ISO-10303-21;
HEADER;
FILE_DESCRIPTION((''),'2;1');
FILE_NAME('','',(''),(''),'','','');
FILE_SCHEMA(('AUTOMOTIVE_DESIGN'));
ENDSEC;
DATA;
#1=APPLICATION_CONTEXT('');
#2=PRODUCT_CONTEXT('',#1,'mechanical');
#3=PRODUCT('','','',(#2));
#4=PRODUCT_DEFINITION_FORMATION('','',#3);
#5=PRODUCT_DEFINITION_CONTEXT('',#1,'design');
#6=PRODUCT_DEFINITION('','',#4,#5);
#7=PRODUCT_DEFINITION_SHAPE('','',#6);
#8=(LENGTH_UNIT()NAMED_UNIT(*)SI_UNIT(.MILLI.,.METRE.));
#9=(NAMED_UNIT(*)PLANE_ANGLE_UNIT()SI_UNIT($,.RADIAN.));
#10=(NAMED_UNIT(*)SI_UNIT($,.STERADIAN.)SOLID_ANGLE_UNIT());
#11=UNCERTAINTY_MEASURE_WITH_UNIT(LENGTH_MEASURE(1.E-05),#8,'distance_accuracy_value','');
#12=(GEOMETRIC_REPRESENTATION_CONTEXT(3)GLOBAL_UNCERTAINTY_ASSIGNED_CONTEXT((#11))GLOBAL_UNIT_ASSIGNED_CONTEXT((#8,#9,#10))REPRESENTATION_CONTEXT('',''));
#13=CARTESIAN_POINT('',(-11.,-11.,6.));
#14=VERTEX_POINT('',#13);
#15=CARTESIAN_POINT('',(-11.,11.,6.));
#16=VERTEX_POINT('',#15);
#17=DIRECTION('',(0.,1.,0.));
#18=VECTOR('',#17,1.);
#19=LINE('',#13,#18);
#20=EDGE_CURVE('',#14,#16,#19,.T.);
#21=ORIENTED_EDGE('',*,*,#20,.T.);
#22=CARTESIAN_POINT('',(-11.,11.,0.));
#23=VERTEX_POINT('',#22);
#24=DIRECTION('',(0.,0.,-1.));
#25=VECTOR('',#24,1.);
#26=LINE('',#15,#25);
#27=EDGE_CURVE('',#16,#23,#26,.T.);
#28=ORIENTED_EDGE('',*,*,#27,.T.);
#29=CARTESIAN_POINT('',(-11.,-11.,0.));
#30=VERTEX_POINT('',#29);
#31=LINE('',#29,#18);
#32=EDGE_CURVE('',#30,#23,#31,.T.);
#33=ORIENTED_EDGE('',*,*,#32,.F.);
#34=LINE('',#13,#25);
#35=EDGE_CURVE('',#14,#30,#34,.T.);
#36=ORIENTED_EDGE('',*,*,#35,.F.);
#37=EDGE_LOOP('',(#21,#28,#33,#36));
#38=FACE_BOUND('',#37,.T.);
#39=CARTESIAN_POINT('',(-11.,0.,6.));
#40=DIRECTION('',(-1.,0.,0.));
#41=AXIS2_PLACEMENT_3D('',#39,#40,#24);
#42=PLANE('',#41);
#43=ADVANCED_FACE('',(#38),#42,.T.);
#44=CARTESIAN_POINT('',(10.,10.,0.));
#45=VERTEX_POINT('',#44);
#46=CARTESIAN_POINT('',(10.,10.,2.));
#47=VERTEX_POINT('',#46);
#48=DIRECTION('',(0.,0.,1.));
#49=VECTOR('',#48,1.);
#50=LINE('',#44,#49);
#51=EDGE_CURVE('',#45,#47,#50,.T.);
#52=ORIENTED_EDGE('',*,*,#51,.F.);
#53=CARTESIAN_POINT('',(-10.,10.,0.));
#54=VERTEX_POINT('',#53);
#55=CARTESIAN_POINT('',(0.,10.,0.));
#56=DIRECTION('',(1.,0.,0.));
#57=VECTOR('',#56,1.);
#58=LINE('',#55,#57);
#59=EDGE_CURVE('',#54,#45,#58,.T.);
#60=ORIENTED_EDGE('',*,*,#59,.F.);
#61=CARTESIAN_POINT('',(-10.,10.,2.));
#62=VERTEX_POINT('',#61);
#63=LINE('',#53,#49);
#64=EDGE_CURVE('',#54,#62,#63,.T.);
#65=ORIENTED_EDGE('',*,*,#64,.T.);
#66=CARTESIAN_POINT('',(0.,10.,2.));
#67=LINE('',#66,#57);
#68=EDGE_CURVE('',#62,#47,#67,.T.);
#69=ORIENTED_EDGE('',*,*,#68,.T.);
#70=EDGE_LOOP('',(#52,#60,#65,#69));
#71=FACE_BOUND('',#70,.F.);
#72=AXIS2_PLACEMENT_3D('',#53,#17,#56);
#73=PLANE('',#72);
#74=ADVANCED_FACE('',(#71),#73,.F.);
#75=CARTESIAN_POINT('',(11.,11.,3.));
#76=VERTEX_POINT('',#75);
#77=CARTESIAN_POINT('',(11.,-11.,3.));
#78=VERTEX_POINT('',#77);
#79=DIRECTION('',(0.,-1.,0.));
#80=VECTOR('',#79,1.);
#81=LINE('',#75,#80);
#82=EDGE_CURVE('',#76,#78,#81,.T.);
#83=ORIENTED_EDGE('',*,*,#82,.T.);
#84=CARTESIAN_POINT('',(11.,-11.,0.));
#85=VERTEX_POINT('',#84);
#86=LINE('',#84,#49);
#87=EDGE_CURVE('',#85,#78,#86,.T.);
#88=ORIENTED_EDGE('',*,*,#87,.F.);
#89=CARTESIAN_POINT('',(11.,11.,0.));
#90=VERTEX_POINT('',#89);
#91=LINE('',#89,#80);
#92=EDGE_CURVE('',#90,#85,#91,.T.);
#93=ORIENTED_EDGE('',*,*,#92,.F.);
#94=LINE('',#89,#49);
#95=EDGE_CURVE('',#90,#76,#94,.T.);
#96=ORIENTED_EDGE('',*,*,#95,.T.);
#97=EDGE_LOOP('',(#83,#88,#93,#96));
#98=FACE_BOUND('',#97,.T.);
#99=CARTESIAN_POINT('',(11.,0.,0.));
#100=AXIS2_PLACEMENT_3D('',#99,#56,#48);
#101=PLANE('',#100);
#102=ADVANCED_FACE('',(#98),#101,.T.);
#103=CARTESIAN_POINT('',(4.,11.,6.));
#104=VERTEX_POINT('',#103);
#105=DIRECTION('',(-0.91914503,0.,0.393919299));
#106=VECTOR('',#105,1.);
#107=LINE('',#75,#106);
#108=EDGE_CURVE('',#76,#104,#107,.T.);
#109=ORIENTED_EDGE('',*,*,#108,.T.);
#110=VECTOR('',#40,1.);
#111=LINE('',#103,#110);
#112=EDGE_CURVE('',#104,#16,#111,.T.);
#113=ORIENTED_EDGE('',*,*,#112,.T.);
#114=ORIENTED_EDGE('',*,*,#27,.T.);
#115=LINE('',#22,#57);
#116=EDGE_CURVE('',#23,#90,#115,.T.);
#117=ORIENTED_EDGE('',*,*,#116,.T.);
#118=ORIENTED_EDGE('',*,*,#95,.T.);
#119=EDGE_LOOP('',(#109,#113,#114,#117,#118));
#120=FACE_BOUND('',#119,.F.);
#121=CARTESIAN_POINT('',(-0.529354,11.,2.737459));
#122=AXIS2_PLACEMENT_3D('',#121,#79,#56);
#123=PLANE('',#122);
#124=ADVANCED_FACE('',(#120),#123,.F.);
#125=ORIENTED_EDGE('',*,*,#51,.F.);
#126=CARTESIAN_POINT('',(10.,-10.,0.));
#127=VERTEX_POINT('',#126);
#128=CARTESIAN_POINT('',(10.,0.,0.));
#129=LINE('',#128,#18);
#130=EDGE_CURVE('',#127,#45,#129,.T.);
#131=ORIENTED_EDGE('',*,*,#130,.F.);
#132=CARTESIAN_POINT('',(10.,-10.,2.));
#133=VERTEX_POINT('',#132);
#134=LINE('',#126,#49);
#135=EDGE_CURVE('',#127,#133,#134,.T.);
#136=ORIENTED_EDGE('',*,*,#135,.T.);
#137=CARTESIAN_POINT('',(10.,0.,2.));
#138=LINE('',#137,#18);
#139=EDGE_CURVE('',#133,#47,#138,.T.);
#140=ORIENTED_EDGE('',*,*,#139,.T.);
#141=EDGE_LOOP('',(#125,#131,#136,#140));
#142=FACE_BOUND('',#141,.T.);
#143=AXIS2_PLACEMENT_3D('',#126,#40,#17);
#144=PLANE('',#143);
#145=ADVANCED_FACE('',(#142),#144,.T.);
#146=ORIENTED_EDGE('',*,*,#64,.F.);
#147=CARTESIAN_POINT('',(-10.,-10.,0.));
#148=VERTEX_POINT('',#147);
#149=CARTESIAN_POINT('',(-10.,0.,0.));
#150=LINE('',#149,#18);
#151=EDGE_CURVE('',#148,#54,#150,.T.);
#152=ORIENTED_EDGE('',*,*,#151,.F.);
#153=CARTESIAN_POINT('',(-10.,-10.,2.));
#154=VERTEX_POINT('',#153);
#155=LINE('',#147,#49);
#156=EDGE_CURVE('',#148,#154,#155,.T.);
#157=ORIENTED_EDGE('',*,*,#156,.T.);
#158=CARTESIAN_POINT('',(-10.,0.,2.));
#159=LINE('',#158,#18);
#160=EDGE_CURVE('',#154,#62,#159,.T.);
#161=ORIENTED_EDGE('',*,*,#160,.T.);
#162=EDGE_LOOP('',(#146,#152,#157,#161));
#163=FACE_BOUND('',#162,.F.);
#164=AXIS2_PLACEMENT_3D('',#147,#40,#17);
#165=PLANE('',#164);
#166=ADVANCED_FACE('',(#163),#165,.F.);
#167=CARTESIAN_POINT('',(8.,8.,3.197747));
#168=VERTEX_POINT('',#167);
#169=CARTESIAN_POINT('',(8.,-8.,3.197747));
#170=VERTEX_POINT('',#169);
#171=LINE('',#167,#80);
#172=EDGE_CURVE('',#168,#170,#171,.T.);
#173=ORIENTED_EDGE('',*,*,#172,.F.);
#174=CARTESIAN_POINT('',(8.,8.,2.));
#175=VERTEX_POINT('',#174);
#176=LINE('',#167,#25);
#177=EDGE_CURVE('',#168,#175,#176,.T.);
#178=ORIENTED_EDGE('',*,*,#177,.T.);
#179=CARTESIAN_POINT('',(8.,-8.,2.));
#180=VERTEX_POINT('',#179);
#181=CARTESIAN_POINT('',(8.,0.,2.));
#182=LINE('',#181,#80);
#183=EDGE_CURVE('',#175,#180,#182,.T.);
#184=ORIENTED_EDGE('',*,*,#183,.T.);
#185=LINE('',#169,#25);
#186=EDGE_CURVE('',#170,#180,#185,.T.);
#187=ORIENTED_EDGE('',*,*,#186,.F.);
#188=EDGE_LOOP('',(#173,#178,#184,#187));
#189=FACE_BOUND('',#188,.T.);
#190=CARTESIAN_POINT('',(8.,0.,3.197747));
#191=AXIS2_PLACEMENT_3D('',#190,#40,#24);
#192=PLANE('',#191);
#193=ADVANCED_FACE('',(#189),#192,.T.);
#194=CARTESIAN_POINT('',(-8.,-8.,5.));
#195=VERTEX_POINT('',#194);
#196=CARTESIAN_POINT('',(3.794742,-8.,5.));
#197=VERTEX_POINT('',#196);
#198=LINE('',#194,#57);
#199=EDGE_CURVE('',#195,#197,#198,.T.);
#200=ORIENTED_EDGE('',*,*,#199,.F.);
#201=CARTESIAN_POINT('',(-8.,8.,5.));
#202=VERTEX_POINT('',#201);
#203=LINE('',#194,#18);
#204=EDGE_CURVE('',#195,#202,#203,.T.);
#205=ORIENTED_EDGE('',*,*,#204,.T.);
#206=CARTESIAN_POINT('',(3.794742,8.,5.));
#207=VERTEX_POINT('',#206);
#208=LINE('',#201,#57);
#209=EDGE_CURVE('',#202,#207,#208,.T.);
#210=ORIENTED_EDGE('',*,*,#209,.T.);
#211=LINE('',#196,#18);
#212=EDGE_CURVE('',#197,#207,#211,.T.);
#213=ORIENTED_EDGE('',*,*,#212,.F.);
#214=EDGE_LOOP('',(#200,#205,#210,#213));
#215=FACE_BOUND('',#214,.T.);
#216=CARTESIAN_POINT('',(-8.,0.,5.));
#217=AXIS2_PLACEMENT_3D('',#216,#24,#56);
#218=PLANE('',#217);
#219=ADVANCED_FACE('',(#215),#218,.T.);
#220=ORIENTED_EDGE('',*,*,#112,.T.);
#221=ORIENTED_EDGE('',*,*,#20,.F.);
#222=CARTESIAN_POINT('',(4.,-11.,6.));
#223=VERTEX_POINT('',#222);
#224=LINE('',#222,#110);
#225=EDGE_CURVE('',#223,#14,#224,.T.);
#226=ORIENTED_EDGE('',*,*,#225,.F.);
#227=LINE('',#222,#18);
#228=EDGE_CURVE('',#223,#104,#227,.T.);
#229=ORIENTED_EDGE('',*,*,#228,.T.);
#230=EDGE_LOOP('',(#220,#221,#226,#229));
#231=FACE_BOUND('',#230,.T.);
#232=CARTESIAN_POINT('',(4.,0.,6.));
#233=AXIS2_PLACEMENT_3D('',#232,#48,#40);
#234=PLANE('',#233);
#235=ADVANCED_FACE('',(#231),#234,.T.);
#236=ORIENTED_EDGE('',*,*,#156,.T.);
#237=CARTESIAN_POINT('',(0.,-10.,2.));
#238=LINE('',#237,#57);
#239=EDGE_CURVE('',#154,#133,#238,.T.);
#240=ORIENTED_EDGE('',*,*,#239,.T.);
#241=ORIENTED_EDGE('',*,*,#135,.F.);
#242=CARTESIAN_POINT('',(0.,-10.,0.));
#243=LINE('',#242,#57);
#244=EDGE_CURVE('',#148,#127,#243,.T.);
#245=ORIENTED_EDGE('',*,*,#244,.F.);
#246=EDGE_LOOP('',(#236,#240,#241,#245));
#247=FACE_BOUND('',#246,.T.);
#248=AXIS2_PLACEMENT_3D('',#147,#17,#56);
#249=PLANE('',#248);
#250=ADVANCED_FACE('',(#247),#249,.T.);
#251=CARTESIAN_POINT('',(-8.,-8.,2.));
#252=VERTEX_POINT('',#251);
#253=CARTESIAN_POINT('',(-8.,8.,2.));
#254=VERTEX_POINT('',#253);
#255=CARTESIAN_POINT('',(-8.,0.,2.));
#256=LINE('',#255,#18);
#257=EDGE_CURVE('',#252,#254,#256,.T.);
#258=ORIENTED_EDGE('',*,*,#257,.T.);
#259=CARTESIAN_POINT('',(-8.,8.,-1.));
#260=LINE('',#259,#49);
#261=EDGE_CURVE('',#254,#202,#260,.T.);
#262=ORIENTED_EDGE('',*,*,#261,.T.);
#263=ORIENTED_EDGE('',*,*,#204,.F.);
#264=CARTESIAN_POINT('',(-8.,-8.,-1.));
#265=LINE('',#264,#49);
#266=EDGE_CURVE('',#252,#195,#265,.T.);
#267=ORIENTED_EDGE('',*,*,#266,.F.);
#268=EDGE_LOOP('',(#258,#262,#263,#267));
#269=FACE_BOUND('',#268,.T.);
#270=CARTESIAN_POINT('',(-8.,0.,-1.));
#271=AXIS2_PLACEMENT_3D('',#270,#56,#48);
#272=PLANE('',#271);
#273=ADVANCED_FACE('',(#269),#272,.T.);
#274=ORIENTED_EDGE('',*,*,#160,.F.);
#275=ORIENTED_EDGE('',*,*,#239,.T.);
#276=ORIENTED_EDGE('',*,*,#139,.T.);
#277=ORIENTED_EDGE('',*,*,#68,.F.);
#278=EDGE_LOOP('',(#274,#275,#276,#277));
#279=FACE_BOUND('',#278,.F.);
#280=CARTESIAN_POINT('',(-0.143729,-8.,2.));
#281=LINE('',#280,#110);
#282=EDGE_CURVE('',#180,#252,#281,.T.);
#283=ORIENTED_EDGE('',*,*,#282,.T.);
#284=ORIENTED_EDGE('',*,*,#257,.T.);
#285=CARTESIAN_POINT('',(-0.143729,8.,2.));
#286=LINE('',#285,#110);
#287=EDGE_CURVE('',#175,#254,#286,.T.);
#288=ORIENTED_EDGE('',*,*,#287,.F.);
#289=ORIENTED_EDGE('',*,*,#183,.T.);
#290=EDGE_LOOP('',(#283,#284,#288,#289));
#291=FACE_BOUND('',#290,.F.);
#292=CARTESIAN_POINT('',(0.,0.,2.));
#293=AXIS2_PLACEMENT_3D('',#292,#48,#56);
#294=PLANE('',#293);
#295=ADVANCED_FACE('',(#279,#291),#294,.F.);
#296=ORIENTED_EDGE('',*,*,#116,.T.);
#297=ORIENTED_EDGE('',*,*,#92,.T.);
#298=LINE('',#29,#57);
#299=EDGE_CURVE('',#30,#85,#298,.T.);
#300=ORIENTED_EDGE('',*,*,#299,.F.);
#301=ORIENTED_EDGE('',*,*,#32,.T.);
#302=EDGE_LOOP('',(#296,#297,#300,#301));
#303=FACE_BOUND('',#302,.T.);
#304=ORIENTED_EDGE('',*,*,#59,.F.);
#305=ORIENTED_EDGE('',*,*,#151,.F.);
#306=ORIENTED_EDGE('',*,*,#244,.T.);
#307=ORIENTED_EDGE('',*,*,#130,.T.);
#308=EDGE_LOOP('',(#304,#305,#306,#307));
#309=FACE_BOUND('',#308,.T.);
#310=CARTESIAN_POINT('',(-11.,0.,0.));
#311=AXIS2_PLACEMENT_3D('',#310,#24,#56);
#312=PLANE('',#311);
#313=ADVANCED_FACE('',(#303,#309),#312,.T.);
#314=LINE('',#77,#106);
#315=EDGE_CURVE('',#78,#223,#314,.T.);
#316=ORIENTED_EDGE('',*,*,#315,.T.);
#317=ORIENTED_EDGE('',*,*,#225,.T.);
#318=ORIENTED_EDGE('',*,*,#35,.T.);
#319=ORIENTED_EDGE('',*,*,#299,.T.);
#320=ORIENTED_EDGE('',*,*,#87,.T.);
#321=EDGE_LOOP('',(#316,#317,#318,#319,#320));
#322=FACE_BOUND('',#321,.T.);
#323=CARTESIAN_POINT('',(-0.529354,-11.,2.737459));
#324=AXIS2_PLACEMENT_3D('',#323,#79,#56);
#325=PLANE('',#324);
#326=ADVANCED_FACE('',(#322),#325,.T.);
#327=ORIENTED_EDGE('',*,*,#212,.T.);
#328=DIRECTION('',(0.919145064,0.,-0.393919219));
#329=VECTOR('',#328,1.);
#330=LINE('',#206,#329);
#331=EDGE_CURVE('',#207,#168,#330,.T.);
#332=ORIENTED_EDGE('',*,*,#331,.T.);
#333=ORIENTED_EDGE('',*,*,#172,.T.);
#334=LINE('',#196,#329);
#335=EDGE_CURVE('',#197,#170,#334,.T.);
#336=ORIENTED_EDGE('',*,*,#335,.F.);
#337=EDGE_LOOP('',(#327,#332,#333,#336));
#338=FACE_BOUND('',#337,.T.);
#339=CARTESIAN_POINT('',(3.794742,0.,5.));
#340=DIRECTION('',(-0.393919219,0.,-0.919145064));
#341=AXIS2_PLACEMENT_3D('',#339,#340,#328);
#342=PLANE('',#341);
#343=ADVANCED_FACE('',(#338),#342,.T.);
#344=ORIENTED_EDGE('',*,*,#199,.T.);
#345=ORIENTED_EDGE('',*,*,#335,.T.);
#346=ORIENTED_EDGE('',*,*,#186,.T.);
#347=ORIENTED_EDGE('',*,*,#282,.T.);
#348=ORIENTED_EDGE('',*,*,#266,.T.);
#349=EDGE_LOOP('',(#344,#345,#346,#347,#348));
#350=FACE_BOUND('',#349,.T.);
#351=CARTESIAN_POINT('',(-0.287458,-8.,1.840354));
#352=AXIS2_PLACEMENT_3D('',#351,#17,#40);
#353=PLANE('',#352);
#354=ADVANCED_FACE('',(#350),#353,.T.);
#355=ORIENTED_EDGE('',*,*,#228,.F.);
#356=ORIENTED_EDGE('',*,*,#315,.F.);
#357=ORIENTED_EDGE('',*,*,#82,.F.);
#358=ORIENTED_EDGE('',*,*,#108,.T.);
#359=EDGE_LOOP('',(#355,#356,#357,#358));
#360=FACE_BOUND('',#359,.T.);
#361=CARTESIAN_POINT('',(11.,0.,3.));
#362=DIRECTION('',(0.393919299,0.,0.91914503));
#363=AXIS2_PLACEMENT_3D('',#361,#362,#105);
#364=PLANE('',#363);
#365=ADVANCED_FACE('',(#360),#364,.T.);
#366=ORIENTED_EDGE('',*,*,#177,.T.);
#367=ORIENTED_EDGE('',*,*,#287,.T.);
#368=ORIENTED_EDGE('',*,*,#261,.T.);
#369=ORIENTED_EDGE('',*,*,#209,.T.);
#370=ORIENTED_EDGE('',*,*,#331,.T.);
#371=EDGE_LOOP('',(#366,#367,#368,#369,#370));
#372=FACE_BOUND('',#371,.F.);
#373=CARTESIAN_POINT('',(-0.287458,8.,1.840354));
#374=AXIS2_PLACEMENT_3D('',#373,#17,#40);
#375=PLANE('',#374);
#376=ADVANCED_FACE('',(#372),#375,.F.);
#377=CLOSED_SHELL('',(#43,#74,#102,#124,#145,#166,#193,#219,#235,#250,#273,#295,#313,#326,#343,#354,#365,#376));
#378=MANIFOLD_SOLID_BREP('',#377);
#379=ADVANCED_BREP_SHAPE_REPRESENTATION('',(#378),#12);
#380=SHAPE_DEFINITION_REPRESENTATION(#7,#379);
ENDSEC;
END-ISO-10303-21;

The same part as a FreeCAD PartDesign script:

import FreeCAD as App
import Part
import Sketcher

V = App.Vector
Q = App.Units.Quantity


def add_polygon(sketch, points):
    """Adds a closed chain of lines whose ends are joined by coincident constraints."""
    first, n = sketch.GeometryCount, len(points)
    for a, b in zip(points, points[1:] + points[:1]):
        sketch.addGeometry(Part.LineSegment(App.Vector(*a, 0), App.Vector(*b, 0)), False)
    for i in range(n):
        sketch.addConstraint(Sketcher.Constraint("Coincident", first + i, 2, first + (i + 1) % n, 1))

doc = App.newDocument("Part")
body = doc.addObject("PartDesign::Body", "Body")

# Sketch on XZ plane
sketch1 = body.newObject("Sketcher::SketchObject", "Sketch")
sketch1.AttachmentSupport = (doc.getObject("XZ_Plane"), [""])
sketch1.MapMode = "FlatFace"
add_polygon(sketch1, [(-11, 0), (11, 0), (11, 3), (4, 6), (-11, 6)])  # lines 0-4
sketch1.addConstraint([
    Sketcher.Constraint("Horizontal", 0),
    Sketcher.Constraint("Vertical", 1),
    Sketcher.Constraint("Horizontal", 3),
    Sketcher.Constraint("Vertical", 4),
    Sketcher.Constraint("Symmetric", 0, 2, 4, 2, -1, 1),
    Sketcher.Constraint("DistanceX", 0, 1, 0, 2, Q("22 mm")),
    Sketcher.Constraint("DistanceX", 3, 2, 3, 1, Q("15 mm")),
    Sketcher.Constraint("DistanceY", 1, 1, 1, 2, Q("3 mm")),
    Sketcher.Constraint("DistanceY", 4, 2, 4, 1, Q("6 mm")),
])
pad1 = body.newObject("PartDesign::Pad", "Pad")
pad1.Profile = sketch1
pad1.Length = 22
pad1.Midplane = True

# Sketch on XY plane
sketch2 = body.newObject("Sketcher::SketchObject", "Sketch001")
sketch2.AttachmentSupport = (doc.getObject("XY_Plane"), [""])
sketch2.MapMode = "FlatFace"
add_polygon(sketch2, [(-10, 10), (-10, -10), (10, -10), (10, 10)])  # lines 0-3
sketch2.addConstraint([
    Sketcher.Constraint("Vertical", 0),
    Sketcher.Constraint("Horizontal", 1),
    Sketcher.Constraint("Vertical", 2),
    Sketcher.Constraint("Horizontal", 3),
    Sketcher.Constraint("Symmetric", 0, 2, 2, 2, -1, 1),
    Sketcher.Constraint("Equal", 3, 0),
    Sketcher.Constraint("DistanceX", 1, 1, 1, 2, Q("20 mm")),
])
pocket1 = body.newObject("PartDesign::Pocket", "Pocket")
pocket1.Profile = sketch2
pocket1.Length = 2
pocket1.Reversed = True

# Sketch on XZ plane
sketch3 = body.newObject("Sketcher::SketchObject", "Sketch002")
sketch3.AttachmentSupport = (doc.getObject("XZ_Plane"), [""])
sketch3.MapMode = "FlatFace"
add_polygon(sketch3, [(-8, 5), (-8, -1), (8, -1), (8, 3.2), (3.8, 5)])  # lines 0-4
sketch3.addConstraint([
    Sketcher.Constraint("Vertical", 0),
    Sketcher.Constraint("Horizontal", 1),
    Sketcher.Constraint("Vertical", 2),
    Sketcher.Constraint("Horizontal", 4),
    Sketcher.Constraint("DistanceX", 1, 1, 1, 2, Q("16 mm")),
    Sketcher.Constraint("DistanceY", 0, 2, 0, 1, Q("6 mm")),
    Sketcher.Constraint("DistanceX", 0, 2, -1, 1, Q("8 mm")),
    Sketcher.Constraint("DistanceY", 0, 2, -1, 1, Q("1 mm")),
    Sketcher.Constraint("DistanceX", 4, 2, 4, 1, Q("11.794742 mm")),
    Sketcher.Constraint("DistanceY", 2, 1, 2, 2, Q("4.197747 mm")),
])
pocket2 = body.newObject("PartDesign::Pocket", "Pocket001")
pocket2.Profile = sketch3
pocket2.Length = 16
pocket2.Midplane = True

doc.recompute()
